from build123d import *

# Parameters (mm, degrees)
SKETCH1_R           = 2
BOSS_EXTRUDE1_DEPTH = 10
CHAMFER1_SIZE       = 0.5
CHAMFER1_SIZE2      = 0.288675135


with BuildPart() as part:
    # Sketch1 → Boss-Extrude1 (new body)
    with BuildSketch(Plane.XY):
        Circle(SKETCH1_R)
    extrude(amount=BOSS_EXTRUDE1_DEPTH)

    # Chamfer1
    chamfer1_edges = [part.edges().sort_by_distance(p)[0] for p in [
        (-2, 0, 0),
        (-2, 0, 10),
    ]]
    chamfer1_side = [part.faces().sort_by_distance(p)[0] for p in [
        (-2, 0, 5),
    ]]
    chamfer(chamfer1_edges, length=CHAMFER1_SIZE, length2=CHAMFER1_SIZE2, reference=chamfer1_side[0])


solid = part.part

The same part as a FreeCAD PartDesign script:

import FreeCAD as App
import Part
import Sketcher
from FreeCAD import Vector


def edges_at(feature, points):
    """Names of the edges that pass closest to the given points."""
    edges = feature.Shape.Edges
    near = lambda p: min(range(len(edges)), key=lambda i: edges[i].distToShape(Part.Vertex(*p))[0])
    return sorted({f"Edge{near(p) + 1}" for p in points})

doc = App.newDocument("Part")
body = doc.addObject("PartDesign::Body", "Body")

sketch1 = body.newObject("Sketcher::SketchObject", "Sketch")
sketch1.AttachmentSupport = (doc.getObject("XY_Plane"), [""])
sketch1.MapMode = "FlatFace"
sketch1.addGeometry(Part.Circle(Vector(0, 0, 0), Vector(0, 0, 1), 2), False)
sketch1.addConstraint([
    Sketcher.Constraint("Coincident", 0, 3, -1, 1),
    Sketcher.Constraint("Diameter", 0, 4.0),
])
pad1 = body.newObject("PartDesign::Pad", "Pad")
pad1.Profile = sketch1
pad1.Length = 10
doc.recompute()

chamfer = body.newObject("PartDesign::Chamfer", "Chamfer")
chamfer.Base = (pad1, edges_at(pad1, [(-2, 0, 0), (-2, 0, 10)]))
chamfer.ChamferType = "Two distances"
chamfer.Size = 0.5
chamfer.Size2 = 0.288675

doc.recompute()
